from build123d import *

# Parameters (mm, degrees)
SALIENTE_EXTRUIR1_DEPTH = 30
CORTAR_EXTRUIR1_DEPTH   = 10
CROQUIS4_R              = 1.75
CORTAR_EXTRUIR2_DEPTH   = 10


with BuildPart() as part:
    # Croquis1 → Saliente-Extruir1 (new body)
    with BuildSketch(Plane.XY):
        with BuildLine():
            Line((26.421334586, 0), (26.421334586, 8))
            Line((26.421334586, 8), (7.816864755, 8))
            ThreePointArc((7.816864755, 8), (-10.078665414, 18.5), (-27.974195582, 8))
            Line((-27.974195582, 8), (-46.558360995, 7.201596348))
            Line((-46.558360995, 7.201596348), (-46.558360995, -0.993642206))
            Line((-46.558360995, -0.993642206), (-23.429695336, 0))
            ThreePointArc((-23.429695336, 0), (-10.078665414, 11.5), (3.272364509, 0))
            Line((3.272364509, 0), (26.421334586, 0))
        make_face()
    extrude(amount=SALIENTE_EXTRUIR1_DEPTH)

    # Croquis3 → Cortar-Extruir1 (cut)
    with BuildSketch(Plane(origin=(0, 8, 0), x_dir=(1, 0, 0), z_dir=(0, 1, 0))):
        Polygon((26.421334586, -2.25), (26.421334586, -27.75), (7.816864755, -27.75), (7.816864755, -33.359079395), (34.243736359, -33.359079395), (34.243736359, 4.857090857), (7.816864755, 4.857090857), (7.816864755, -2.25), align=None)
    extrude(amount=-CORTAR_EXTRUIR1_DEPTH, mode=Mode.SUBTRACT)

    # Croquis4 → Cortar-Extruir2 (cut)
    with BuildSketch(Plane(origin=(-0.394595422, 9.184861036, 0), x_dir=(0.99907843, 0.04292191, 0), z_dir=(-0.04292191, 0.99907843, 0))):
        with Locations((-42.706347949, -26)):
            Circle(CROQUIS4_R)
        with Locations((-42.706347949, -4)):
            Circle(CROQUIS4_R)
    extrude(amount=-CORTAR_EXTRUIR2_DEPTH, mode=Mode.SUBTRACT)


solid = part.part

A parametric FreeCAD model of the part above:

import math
import FreeCAD as App
import Part
import Sketcher

V = App.Vector
Q = App.Units.Quantity

doc = App.newDocument("Part")
body = doc.addObject("PartDesign::Body", "Body")

sketch1 = body.newObject("Sketcher::SketchObject", "Sketch")
sketch1.AttachmentSupport = (doc.getObject("XY_Plane"), [""])
sketch1.MapMode = "FlatFace"
sketch1.addGeometry([
    Part.LineSegment(V(26, 0, 0), V(26, 8, 0)),
    Part.LineSegment(V(26, 8, 0), V(8, 8, 0)),
    Part.ArcOfCircle(Part.Circle(V(-10, -2, 0), V(0, 0, 1), 21), math.radians(29), math.radians(151)),
    Part.LineSegment(V(-28, 8, 0), V(-47, 7, 0)),
    Part.LineSegment(V(-47, 7, 0), V(-47, -1, 0)),
    Part.LineSegment(V(-47, -1, 0), V(-23, 0, 0)),
    Part.ArcOfCircle(Part.Circle(V(-10, -2, 0), V(0, 0, 1), 14), math.radians(9), math.radians(171)),
    Part.LineSegment(V(3, 0, 0), V(26, 0, 0)),
], False)
sketch1.addConstraint([
    Sketcher.Constraint("Coincident", 0, 2, 1, 1),
    Sketcher.Constraint("Coincident", 1, 2, 2, 1),
    Sketcher.Constraint("Coincident", 2, 2, 3, 1),
    Sketcher.Constraint("Coincident", 3, 2, 4, 1),
    Sketcher.Constraint("Coincident", 4, 2, 5, 1),
    Sketcher.Constraint("Coincident", 5, 2, 6, 2),
    Sketcher.Constraint("Coincident", 6, 1, 7, 1),
    Sketcher.Constraint("Coincident", 7, 2, 0, 1),
    Sketcher.Constraint("Vertical", 0),
    Sketcher.Constraint("Horizontal", 1),
    Sketcher.Constraint("Vertical", 4),
    Sketcher.Constraint("Horizontal", 7),
    Sketcher.Constraint("Coincident", 6, 3, 2, 3),
    Sketcher.Constraint("PointOnObject", 5, 2, -1),
    Sketcher.Constraint("PointOnObject", 6, 1, -1),
    Sketcher.Constraint("Parallel", 3, 5),
    Sketcher.Constraint("Horizontal", 1, 2, 2, 2),
    Sketcher.Constraint("Radius", 2, 20.5),
    Sketcher.Constraint("Radius", 6, 13.5),
    Sketcher.Constraint("DistanceY", 0, 1, 0, 2, 8.0),
    Sketcher.Constraint("DistanceY", 2, 3, -1, 1, 2.0),
    Sketcher.Constraint("Angle", 3, Q("-177.54 deg")),
    Sketcher.Constraint("DistanceX", 2, 3, 0, 2, 36.5),
    Sketcher.Constraint("Distance", 5, 23.15),
    Sketcher.Constraint("DistanceX", 3, 2, -1, 1, 46.558361),
])
pad1 = body.newObject("PartDesign::Pad", "Pad")
pad1.Profile = sketch1
pad1.Length = 30

sketch2 = body.newObject("Sketcher::SketchObject", "Sketch001")
sketch2.AttachmentSupport = (doc.getObject("XZ_Plane"), [""])
sketch2.MapMode = "FlatFace"
sketch2.AttachmentOffset = App.Placement(V(0, 0, -8), App.Rotation())
sketch2.addGeometry([
    Part.LineSegment(V(26, 2, 0), V(26, 28, 0)),
    Part.LineSegment(V(26, 28, 0), V(8, 28, 0)),
    Part.LineSegment(V(8, 28, 0), V(8, 33, 0)),
    Part.LineSegment(V(8, 33, 0), V(34, 33, 0)),
    Part.LineSegment(V(34, 33, 0), V(34, -5, 0)),
    Part.LineSegment(V(34, -5, 0), V(8, -5, 0)),
    Part.LineSegment(V(8, -5, 0), V(8, 2, 0)),
    Part.LineSegment(V(8, 2, 0), V(26, 2, 0)),
], False)
sketch2.addConstraint([
    Sketcher.Constraint("Coincident", 0, 2, 1, 1),
    Sketcher.Constraint("Coincident", 1, 2, 2, 1),
    Sketcher.Constraint("Coincident", 2, 2, 3, 1),
    Sketcher.Constraint("Coincident", 3, 2, 4, 1),
    Sketcher.Constraint("Coincident", 4, 2, 5, 1),
    Sketcher.Constraint("Coincident", 5, 2, 6, 1),
    Sketcher.Constraint("Coincident", 6, 2, 7, 1),
    Sketcher.Constraint("Coincident", 7, 2, 0, 1),
    Sketcher.Constraint("Vertical", 0),
    Sketcher.Constraint("Horizontal", 1),
    Sketcher.Constraint("Vertical", 2),
    Sketcher.Constraint("Horizontal", 3),
    Sketcher.Constraint("Vertical", 4),
    Sketcher.Constraint("Horizontal", 5),
    Sketcher.Constraint("Vertical", 6),
    Sketcher.Constraint("Horizontal", 7),
    Sketcher.Constraint("Vertical", 2, 2, 5, 2),
    Sketcher.Constraint("DistanceY", 0, 1, 0, 2, 25.5),
    Sketcher.Constraint("DistanceY", -1, 1, 0, 2, 27.75),
    Sketcher.Constraint("DistanceX", 1, 2, 1, 1, 18.60447),
    Sketcher.Constraint("DistanceX", 3, 1, 3, 2, 26.426872),
    Sketcher.Constraint("DistanceY", 2, 1, 2, 2, 5.609079),
    Sketcher.Constraint("DistanceY", 4, 2, 4, 1, 38.21617),
    Sketcher.Constraint("DistanceX", -1, 1, 0, 2, 26.421335),
])
pocket1 = body.newObject("PartDesign::Pocket", "Pocket")
pocket1.Profile = sketch2
pocket1.Length = 10
pocket1.Reversed = True

sketch3 = body.newObject("Sketcher::SketchObject", "Sketch002")
sketch3.Placement = App.Placement(V(-0.394595, 9.184861, 0), App.Rotation(V(0.99907843, 0.04292191, 0), V(0, 0, -1), V(-0.04292191, 0.99907843, 0), "ZXY"))
sketch3.addGeometry([
    Part.Circle(V(-42.7, -26, 0), V(0, 0, 1), 1.8),
    Part.Circle(V(-42.7, -4, 0), V(0, 0, 1), 1.8),
], False)
sketch3.addConstraint([
    Sketcher.Constraint("Equal", 0, 1),
    Sketcher.Constraint("Vertical", 0, 3, 1, 3),
    Sketcher.Constraint("Diameter", 0, 3.5),
    Sketcher.Constraint("DistanceY", 0, 3, -1, 1, 26.0),
    Sketcher.Constraint("DistanceY", 1, 3, -1, 1, 4.0),
    Sketcher.Constraint("DistanceX", 0, 3, -1, 1, 42.706348),
])
pocket2 = body.newObject("PartDesign::Pocket", "Pocket001")
pocket2.Profile = sketch3
pocket2.Length = 10

doc.recompute()
